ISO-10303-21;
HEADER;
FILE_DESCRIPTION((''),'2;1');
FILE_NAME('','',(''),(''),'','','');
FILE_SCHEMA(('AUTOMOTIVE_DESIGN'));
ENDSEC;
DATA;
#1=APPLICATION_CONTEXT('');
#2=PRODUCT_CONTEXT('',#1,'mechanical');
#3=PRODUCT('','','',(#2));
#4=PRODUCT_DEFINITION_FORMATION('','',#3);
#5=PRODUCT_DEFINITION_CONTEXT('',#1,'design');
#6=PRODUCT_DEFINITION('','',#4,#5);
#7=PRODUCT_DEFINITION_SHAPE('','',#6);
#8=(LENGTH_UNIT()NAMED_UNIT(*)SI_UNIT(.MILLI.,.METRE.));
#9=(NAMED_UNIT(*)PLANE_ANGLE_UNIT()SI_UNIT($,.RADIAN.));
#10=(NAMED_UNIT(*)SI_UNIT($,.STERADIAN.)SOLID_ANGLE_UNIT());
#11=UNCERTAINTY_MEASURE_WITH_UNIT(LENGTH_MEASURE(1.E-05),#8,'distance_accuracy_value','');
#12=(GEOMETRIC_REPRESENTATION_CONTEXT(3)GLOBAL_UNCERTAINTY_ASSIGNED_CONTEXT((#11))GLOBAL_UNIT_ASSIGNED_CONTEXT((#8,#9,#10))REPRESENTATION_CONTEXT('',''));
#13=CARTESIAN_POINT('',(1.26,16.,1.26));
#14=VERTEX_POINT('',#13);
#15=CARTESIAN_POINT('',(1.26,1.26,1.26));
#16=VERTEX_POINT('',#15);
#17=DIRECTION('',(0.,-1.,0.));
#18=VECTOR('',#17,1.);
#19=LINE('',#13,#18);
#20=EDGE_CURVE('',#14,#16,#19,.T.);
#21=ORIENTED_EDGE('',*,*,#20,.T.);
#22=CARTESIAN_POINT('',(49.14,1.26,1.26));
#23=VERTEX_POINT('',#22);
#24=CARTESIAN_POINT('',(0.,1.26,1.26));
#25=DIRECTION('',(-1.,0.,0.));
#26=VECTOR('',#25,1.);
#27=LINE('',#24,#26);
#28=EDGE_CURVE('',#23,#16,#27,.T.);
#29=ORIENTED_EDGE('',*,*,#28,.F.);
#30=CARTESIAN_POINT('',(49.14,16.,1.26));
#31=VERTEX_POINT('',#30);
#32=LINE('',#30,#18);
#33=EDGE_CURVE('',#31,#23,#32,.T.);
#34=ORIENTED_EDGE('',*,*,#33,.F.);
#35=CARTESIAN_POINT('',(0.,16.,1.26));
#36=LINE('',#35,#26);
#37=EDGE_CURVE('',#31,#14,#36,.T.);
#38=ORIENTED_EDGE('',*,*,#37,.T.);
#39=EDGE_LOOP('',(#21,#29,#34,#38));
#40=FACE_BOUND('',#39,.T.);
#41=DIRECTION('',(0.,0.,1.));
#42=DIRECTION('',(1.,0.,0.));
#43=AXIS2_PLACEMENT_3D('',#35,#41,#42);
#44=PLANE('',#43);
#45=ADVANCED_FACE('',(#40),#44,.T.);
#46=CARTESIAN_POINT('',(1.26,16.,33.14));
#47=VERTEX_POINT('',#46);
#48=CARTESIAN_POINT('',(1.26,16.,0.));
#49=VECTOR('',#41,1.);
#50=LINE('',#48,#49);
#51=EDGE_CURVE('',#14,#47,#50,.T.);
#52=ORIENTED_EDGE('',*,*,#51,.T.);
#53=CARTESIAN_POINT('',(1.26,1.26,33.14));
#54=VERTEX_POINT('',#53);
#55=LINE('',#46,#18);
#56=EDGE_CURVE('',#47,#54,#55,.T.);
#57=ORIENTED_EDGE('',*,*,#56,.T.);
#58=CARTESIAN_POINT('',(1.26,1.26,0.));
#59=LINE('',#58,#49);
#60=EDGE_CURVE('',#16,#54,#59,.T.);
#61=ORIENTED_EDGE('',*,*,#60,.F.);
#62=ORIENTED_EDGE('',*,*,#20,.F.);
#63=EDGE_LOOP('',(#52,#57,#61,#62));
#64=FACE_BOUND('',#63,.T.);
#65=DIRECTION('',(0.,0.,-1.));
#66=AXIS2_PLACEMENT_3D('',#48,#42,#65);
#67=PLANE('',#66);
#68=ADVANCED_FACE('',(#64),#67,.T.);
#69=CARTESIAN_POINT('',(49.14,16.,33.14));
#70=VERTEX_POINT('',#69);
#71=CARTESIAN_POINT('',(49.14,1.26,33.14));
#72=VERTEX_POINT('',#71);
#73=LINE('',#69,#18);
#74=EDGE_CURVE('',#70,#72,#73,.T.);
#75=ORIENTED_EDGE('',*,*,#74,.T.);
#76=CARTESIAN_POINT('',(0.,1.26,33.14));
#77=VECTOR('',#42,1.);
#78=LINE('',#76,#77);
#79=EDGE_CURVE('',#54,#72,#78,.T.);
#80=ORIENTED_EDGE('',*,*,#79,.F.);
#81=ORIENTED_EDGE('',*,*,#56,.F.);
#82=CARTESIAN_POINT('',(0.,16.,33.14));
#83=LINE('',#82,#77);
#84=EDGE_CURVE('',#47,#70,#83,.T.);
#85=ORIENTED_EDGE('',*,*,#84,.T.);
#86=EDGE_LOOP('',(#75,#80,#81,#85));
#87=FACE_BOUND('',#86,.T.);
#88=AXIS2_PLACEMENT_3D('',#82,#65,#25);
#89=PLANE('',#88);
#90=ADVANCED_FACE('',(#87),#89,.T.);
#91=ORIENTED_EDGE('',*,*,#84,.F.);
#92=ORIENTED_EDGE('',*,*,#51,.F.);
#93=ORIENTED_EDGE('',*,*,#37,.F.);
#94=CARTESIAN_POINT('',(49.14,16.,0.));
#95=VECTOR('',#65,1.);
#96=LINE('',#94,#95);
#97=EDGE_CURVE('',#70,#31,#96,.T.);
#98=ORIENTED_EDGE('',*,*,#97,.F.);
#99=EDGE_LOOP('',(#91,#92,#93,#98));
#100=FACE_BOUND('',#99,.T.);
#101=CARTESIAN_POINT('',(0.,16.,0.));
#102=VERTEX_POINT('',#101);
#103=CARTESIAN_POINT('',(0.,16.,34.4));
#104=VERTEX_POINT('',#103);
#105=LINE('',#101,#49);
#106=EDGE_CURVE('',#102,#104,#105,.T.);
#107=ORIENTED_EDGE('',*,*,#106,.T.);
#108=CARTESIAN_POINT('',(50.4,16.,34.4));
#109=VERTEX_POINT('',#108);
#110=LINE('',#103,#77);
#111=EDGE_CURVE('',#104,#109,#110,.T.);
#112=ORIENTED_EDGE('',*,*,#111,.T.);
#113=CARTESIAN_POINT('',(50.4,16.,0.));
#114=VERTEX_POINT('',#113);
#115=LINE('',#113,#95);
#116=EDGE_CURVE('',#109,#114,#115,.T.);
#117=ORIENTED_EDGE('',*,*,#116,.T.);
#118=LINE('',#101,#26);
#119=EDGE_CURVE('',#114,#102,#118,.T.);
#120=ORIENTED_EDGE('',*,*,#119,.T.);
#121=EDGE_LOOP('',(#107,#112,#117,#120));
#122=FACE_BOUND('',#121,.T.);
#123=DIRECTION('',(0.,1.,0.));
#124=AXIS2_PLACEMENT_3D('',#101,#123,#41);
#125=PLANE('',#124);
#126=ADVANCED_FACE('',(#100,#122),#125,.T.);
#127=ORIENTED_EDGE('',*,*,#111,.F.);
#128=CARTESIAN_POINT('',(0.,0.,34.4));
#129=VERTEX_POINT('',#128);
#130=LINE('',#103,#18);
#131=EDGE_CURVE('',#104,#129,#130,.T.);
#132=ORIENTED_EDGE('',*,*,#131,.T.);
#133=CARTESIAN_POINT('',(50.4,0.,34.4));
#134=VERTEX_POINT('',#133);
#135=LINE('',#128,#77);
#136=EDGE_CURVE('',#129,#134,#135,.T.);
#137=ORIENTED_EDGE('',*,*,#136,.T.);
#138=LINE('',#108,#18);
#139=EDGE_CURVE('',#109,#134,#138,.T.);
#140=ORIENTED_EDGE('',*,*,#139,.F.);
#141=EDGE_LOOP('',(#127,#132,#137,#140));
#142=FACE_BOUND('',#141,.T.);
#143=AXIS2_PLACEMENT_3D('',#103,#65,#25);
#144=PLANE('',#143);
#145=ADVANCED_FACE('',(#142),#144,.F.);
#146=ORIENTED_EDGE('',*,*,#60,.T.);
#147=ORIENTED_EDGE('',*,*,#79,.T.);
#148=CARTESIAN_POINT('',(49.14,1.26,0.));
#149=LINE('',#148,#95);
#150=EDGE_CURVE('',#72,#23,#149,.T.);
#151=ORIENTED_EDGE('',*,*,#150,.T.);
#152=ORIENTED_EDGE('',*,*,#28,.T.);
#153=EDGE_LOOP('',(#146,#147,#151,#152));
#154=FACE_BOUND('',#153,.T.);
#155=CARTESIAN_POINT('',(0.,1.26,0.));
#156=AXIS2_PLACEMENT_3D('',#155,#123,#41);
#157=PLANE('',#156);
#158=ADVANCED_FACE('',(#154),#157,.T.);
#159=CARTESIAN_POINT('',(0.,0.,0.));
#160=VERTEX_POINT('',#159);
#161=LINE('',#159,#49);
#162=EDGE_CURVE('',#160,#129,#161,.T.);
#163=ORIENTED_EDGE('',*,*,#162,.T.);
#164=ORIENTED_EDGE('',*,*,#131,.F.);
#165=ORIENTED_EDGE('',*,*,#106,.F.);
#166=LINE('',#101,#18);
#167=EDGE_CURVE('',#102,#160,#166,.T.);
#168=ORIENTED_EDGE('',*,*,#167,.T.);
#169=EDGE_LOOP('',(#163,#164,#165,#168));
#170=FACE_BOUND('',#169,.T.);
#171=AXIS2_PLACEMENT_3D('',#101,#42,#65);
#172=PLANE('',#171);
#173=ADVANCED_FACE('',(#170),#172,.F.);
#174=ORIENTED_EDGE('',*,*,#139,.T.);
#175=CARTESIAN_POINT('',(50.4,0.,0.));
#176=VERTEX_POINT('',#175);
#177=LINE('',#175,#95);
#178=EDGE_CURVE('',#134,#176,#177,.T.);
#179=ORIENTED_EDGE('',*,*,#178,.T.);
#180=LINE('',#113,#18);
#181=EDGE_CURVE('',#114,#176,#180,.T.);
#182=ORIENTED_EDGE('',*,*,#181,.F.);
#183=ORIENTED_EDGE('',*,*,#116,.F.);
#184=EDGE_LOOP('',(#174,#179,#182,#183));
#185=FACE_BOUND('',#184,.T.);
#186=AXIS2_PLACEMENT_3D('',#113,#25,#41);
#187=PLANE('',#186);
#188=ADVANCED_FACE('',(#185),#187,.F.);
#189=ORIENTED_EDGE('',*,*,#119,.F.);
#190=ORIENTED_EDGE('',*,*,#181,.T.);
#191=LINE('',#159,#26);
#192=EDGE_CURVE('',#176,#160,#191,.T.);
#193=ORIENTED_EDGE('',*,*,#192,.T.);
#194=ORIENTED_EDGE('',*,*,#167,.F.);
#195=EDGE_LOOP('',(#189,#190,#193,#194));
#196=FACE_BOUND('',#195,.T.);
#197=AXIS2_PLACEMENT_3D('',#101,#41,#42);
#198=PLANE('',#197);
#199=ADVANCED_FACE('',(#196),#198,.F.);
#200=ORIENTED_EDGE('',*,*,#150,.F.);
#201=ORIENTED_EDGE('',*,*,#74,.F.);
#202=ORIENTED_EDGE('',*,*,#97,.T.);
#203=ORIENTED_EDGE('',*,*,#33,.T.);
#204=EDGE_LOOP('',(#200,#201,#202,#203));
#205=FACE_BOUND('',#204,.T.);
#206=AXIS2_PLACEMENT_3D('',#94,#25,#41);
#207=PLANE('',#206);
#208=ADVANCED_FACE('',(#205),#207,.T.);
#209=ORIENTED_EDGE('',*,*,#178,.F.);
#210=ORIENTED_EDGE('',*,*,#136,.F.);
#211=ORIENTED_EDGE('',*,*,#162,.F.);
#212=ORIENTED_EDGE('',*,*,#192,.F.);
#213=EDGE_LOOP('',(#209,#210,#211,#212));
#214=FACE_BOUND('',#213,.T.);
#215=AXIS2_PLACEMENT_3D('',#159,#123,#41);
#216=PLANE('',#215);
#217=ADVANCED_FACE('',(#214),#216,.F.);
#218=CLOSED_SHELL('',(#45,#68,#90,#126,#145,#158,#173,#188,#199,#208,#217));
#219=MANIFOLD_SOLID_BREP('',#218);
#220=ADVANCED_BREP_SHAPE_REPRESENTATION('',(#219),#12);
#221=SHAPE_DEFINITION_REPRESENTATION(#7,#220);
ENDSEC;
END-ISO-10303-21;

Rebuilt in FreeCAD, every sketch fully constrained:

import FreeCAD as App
import Part
import Sketcher

V = App.Vector
Q = App.Units.Quantity


def faces_at(feature, points):
    """Names of the faces that lie closest to the given points."""
    faces = feature.Shape.Faces
    near = lambda p: min(range(len(faces)), key=lambda i: faces[i].distToShape(Part.Vertex(*p))[0])
    return sorted({f"Face{near(p) + 1}" for p in points})


def add_polygon(sketch, points):
    """Adds a closed chain of lines whose ends are joined by coincident constraints."""
    first, n = sketch.GeometryCount, len(points)
    for a, b in zip(points, points[1:] + points[:1]):
        sketch.addGeometry(Part.LineSegment(App.Vector(*a, 0), App.Vector(*b, 0)), False)
    for i in range(n):
        sketch.addConstraint(Sketcher.Constraint("Coincident", first + i, 2, first + (i + 1) % n, 1))

doc = App.newDocument("Part")
params = doc.addObject("Spreadsheet::Sheet", "Params")
for row, (alias, value) in enumerate([
    ("sketch1_width", "50.4 mm"),
    ("sketch1_height", "34.4 mm"),
    ("pad1_length", "16 mm"),
    ("thickness_wall", "1.26 mm"),
], start=1):
    params.set(f"A{row}", alias)
    params.set(f"B{row}", "=" + value)
    params.setAlias(f"B{row}", alias)

body = doc.addObject("PartDesign::Body", "Body")

sketch1 = body.newObject("Sketcher::SketchObject", "Sketch")
sketch1.AttachmentSupport = (doc.getObject("XZ_Plane"), [""])
sketch1.MapMode = "FlatFace"
add_polygon(sketch1, [(0, 0), (0, 34), (50, 34), (50, 0)])
sketch1.addConstraint([
    Sketcher.Constraint("Vertical", 0),
    Sketcher.Constraint("Horizontal", 1),
    Sketcher.Constraint("Vertical", 2),
    Sketcher.Constraint("Horizontal", 3),
    Sketcher.Constraint("Coincident", 3, 2, -1, 1),
    Sketcher.Constraint("DistanceX", 1, 1, 1, 2, Q("50.4 mm")),
    Sketcher.Constraint("DistanceY", 0, 1, 0, 2, Q("34.4 mm")),
])
sketch1.setExpression("Constraints[9]", "Params.sketch1_width")
sketch1.setExpression("Constraints[10]", "Params.sketch1_height")
pad1 = body.newObject("PartDesign::Pad", "Pad")
pad1.Profile = sketch1
pad1.setExpression("Length", "Params.pad1_length")
pad1.Reversed = True
doc.recompute()

thickness = body.newObject("PartDesign::Thickness", "Thickness")
thickness.Base = (pad1, faces_at(pad1, [(25.2, 16, 17.2)]))
thickness.setExpression("Value", "Params.thickness_wall")
thickness.Reversed = True
thickness.Join = "Intersection"

doc.recompute()
